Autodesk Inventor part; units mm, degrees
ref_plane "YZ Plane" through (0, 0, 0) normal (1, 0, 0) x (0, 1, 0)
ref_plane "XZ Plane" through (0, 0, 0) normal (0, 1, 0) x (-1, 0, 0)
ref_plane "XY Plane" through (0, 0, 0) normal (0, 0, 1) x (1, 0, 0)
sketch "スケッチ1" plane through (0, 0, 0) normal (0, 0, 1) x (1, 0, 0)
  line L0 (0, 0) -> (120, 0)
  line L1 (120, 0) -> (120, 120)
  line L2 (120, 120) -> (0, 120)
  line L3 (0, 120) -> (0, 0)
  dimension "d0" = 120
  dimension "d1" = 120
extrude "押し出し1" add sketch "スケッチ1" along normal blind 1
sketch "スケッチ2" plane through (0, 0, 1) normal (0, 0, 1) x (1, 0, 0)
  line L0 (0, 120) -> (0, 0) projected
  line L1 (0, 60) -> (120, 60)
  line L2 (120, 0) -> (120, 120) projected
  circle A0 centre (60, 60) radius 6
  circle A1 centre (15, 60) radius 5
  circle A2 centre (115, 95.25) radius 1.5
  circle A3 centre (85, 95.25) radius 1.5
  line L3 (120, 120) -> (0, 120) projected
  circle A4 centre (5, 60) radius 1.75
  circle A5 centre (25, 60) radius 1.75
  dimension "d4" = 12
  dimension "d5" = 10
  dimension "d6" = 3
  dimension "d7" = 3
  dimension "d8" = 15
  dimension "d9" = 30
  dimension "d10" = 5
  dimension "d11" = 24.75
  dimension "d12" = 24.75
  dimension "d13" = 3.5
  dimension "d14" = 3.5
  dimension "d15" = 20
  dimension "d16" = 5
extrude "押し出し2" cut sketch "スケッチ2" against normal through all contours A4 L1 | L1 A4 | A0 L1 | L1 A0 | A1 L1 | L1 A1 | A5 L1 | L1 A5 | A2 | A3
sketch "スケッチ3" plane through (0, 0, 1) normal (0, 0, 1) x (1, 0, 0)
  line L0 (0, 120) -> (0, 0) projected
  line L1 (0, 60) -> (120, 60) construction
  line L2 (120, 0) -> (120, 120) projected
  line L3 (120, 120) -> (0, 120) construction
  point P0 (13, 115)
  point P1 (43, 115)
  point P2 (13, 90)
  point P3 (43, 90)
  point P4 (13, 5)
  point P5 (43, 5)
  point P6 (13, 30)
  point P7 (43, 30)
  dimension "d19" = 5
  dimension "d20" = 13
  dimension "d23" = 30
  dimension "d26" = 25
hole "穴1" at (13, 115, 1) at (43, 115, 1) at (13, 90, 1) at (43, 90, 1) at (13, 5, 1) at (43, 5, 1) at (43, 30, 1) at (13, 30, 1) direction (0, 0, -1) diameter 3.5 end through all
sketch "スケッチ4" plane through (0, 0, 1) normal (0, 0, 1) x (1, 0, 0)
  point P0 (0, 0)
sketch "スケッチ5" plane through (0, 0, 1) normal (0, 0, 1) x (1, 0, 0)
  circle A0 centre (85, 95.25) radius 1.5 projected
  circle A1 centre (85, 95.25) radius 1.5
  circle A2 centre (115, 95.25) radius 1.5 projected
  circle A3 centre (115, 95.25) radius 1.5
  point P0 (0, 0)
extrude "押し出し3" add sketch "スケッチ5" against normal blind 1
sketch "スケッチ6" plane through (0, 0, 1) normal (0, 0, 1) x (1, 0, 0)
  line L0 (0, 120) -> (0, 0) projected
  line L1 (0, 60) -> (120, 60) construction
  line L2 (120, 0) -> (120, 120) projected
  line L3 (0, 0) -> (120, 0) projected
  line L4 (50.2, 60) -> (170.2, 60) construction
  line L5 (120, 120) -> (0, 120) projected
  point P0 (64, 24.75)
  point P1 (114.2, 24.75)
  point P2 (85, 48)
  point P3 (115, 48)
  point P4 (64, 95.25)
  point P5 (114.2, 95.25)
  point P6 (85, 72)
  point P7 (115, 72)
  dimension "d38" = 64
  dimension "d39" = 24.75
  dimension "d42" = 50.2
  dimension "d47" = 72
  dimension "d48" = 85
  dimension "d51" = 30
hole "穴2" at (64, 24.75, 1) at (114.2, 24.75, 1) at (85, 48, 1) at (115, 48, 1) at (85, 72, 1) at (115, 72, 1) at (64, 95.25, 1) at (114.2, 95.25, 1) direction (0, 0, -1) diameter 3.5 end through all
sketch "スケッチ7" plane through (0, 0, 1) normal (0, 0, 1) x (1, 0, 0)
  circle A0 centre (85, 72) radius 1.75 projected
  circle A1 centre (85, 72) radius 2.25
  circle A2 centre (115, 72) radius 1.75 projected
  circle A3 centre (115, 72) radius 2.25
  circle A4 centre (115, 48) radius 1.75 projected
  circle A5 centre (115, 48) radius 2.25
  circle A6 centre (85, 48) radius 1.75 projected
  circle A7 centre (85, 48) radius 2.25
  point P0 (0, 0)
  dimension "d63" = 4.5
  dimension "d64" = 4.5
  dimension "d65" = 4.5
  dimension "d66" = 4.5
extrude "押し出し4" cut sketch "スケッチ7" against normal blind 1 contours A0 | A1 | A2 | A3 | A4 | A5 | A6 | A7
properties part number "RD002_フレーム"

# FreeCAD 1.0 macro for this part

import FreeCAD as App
import Part
import Sketcher
from FreeCAD import Vector

doc = App.newDocument("Part")
body = doc.addObject("PartDesign::Body", "Body")

sketch1 = doc.addObject("Sketcher::SketchObject", "Sketch")
body.addObject(sketch1)
sketch1.AttachmentSupport = (doc.XY_Plane, [""])
sketch1.MapMode = "FlatFace"
sketch1.addGeometry(Part.LineSegment(Vector(0, 120, 0), Vector(0, 0, 0)), False)
sketch1.addGeometry(Part.LineSegment(Vector(0, 0, 0), Vector(120, 0, 0)), False)
sketch1.addGeometry(Part.LineSegment(Vector(120, 0, 0), Vector(120, 120, 0)), False)
sketch1.addGeometry(Part.LineSegment(Vector(120, 120, 0), Vector(0, 120, 0)), False)
sketch1.addConstraint(Sketcher.Constraint("Coincident", 0, 2, 1, 1))
sketch1.addConstraint(Sketcher.Constraint("Coincident", 1, 2, 2, 1))
sketch1.addConstraint(Sketcher.Constraint("Coincident", 2, 2, 3, 1))
sketch1.addConstraint(Sketcher.Constraint("Coincident", 3, 2, 0, 1))
sketch1.addConstraint(Sketcher.Constraint("Vertical", 0))
sketch1.addConstraint(Sketcher.Constraint("Horizontal", 1))
sketch1.addConstraint(Sketcher.Constraint("Vertical", 2))
sketch1.addConstraint(Sketcher.Constraint("Horizontal", 3))
sketch1.addConstraint(Sketcher.Constraint("Coincident", 0, 2, -1, 1))
sketch1.addConstraint(Sketcher.Constraint("Equal", 3, 0))
sketch1.addConstraint(Sketcher.Constraint("DistanceX", 1, 1, 1, 2, 120.0))
pad1 = doc.addObject("PartDesign::Pad", "Pad")
body.addObject(pad1)
pad1.Profile = sketch1
pad1.Length = 1

sketch2 = doc.addObject("Sketcher::SketchObject", "Sketch001")
body.addObject(sketch2)
sketch2.AttachmentSupport = (doc.XY_Plane, [""])
sketch2.MapMode = "FlatFace"
sketch2.AttachmentOffset = App.Placement(Vector(0, 0, 1), App.Rotation())
sketch2.addGeometry(Part.Circle(Vector(5, 60, 0), Vector(0, 0, 1), 1.8), False)
sketch2.addGeometry(Part.Circle(Vector(60, 60, 0), Vector(0, 0, 1), 6), False)
sketch2.addGeometry(Part.Circle(Vector(15, 60, 0), Vector(0, 0, 1), 5), False)
sketch2.addGeometry(Part.Circle(Vector(25, 60, 0), Vector(0, 0, 1), 1.8), False)
sketch2.addGeometry(Part.Circle(Vector(115, 95.2, 0), Vector(0, 0, 1), 1.5), False)
sketch2.addGeometry(Part.Circle(Vector(85, 95.2, 0), Vector(0, 0, 1), 1.5), False)
sketch2.addConstraint(Sketcher.Constraint("Equal", 0, 3))
sketch2.addConstraint(Sketcher.Constraint("Equal", 4, 5))
sketch2.addConstraint(Sketcher.Constraint("Horizontal", 0, 3, 1, 3))
sketch2.addConstraint(Sketcher.Constraint("Horizontal", 1, 3, 2, 3))
sketch2.addConstraint(Sketcher.Constraint("Horizontal", 2, 3, 3, 3))
sketch2.addConstraint(Sketcher.Constraint("Horizontal", 4, 3, 5, 3))
sketch2.addConstraint(Sketcher.Constraint("Diameter", 1, 12.0))
sketch2.addConstraint(Sketcher.Constraint("Diameter", 2, 10.0))
sketch2.addConstraint(Sketcher.Constraint("Diameter", 4, 3.0))
sketch2.addConstraint(Sketcher.Constraint("Diameter", 0, 3.5))
sketch2.addConstraint(Sketcher.Constraint("DistanceX", -1, 1, 0, 3, 5.0))
sketch2.addConstraint(Sketcher.Constraint("DistanceX", -1, 1, 2, 3, 15.0))
sketch2.addConstraint(Sketcher.Constraint("DistanceX", 2, 3, 3, 3, 10.0))
sketch2.addConstraint(Sketcher.Constraint("DistanceX", 5, 3, 4, 3, 30.0))
sketch2.addConstraint(Sketcher.Constraint("DistanceY", -1, 1, 0, 3, 60.0))
sketch2.addConstraint(Sketcher.Constraint("DistanceX", -1, 1, 1, 3, 60.0))
sketch2.addConstraint(Sketcher.Constraint("DistanceX", -1, 1, 4, 3, 115.0))
sketch2.addConstraint(Sketcher.Constraint("DistanceY", -1, 1, 4, 3, 95.25))
pocket1 = doc.addObject("PartDesign::Pocket", "Pocket")
body.addObject(pocket1)
pocket1.Profile = sketch2
pocket1.Type = "ThroughAll"

sketch3 = doc.addObject("Sketcher::SketchObject", "Sketch002")
body.addObject(sketch3)
sketch3.AttachmentSupport = (doc.XY_Plane, [""])
sketch3.MapMode = "FlatFace"
sketch3.AttachmentOffset = App.Placement(Vector(0, 0, 1), App.Rotation())
sketch3.addGeometry(Part.Circle(Vector(13, 115, 0), Vector(0, 0, 1), 1.8), False)
sketch3.addGeometry(Part.Circle(Vector(43, 115, 0), Vector(0, 0, 1), 1.8), False)
sketch3.addGeometry(Part.Circle(Vector(13, 90, 0), Vector(0, 0, 1), 1.8), False)
sketch3.addGeometry(Part.Circle(Vector(43, 90, 0), Vector(0, 0, 1), 1.8), False)
sketch3.addGeometry(Part.Circle(Vector(13, 5, 0), Vector(0, 0, 1), 1.8), False)
sketch3.addGeometry(Part.Circle(Vector(43, 5, 0), Vector(0, 0, 1), 1.8), False)
sketch3.addGeometry(Part.Circle(Vector(43, 30, 0), Vector(0, 0, 1), 1.8), False)
sketch3.addGeometry(Part.Circle(Vector(13, 30, 0), Vector(0, 0, 1), 1.8), False)
sketch3.addConstraint(Sketcher.Constraint("Equal", 0, 1))
sketch3.addConstraint(Sketcher.Constraint("Equal", 1, 2))
sketch3.addConstraint(Sketcher.Constraint("Equal", 2, 3))
sketch3.addConstraint(Sketcher.Constraint("Equal", 3, 4))
sketch3.addConstraint(Sketcher.Constraint("Equal", 4, 5))
sketch3.addConstraint(Sketcher.Constraint("Equal", 5, 6))
sketch3.addConstraint(Sketcher.Constraint("Equal", 6, 7))
sketch3.addConstraint(Sketcher.Constraint("Horizontal", 0, 3, 1, 3))
sketch3.addConstraint(Sketcher.Constraint("Horizontal", 2, 3, 3, 3))
sketch3.addConstraint(Sketcher.Constraint("Horizontal", 4, 3, 5, 3))
sketch3.addConstraint(Sketcher.Constraint("Horizontal", 6, 3, 7, 3))
sketch3.addConstraint(Sketcher.Constraint("Vertical", 0, 3, 2, 3))
sketch3.addConstraint(Sketcher.Constraint("Vertical", 1, 3, 3, 3))
sketch3.addConstraint(Sketcher.Constraint("Vertical", 2, 3, 4, 3))
sketch3.addConstraint(Sketcher.Constraint("Vertical", 3, 3, 5, 3))
sketch3.addConstraint(Sketcher.Constraint("Vertical", 5, 3, 6, 3))
sketch3.addConstraint(Sketcher.Constraint("Vertical", 4, 3, 7, 3))
sketch3.addConstraint(Sketcher.Constraint("Diameter", 0, 3.5))
sketch3.addConstraint(Sketcher.Constraint("DistanceX", -1, 1, 0, 3, 13.0))
sketch3.addConstraint(Sketcher.Constraint("DistanceY", -1, 1, 0, 3, 115.0))
sketch3.addConstraint(Sketcher.Constraint("DistanceX", -1, 1, 1, 3, 43.0))
sketch3.addConstraint(Sketcher.Constraint("DistanceY", -1, 1, 2, 3, 90.0))
sketch3.addConstraint(Sketcher.Constraint("DistanceY", -1, 1, 4, 3, 5.0))
sketch3.addConstraint(Sketcher.Constraint("DistanceY", -1, 1, 6, 3, 30.0))
doc.recompute()
hole = doc.addObject("PartDesign::Hole", "Hole")
body.addObject(hole)
hole.Profile = sketch3
hole.ThreadType = "None"
hole.Diameter = 3.5
hole.DepthType = "ThroughAll"

sketch4 = doc.addObject("Sketcher::SketchObject", "Sketch003")
body.addObject(sketch4)
sketch4.AttachmentSupport = (doc.XY_Plane, [""])
sketch4.MapMode = "FlatFace"
sketch4.AttachmentOffset = App.Placement(Vector(0, 0, 1), App.Rotation())
sketch4.addGeometry(Part.Circle(Vector(85, 95.2, 0), Vector(0, 0, 1), 1.5), False)
sketch4.addGeometry(Part.Circle(Vector(115, 95.2, 0), Vector(0, 0, 1), 1.5), False)
sketch4.addConstraint(Sketcher.Constraint("Equal", 0, 1))
sketch4.addConstraint(Sketcher.Constraint("Horizontal", 0, 3, 1, 3))
sketch4.addConstraint(Sketcher.Constraint("Diameter", 0, 3.0))
sketch4.addConstraint(Sketcher.Constraint("DistanceX", -1, 1, 0, 3, 85.0))
sketch4.addConstraint(Sketcher.Constraint("DistanceX", -1, 1, 1, 3, 115.0))
sketch4.addConstraint(Sketcher.Constraint("DistanceY", -1, 1, 0, 3, 95.25))
pad2 = doc.addObject("PartDesign::Pad", "Pad001")
body.addObject(pad2)
pad2.Profile = sketch4
pad2.Length = 1
pad2.Reversed = True

sketch5 = doc.addObject("Sketcher::SketchObject", "Sketch004")
body.addObject(sketch5)
sketch5.AttachmentSupport = (doc.XY_Plane, [""])
sketch5.MapMode = "FlatFace"
sketch5.AttachmentOffset = App.Placement(Vector(0, 0, 1), App.Rotation())
sketch5.addGeometry(Part.Circle(Vector(64, 24.8, 0), Vector(0, 0, 1), 1.8), False)
sketch5.addGeometry(Part.Circle(Vector(114.2, 24.8, 0), Vector(0, 0, 1), 1.8), False)
sketch5.addGeometry(Part.Circle(Vector(85, 48, 0), Vector(0, 0, 1), 1.8), False)
sketch5.addGeometry(Part.Circle(Vector(115, 48, 0), Vector(0, 0, 1), 1.8), False)
sketch5.addGeometry(Part.Circle(Vector(85, 72, 0), Vector(0, 0, 1), 1.8), False)
sketch5.addGeometry(Part.Circle(Vector(115, 72, 0), Vector(0, 0, 1), 1.8), False)
sketch5.addGeometry(Part.Circle(Vector(64, 95.2, 0), Vector(0, 0, 1), 1.8), False)
sketch5.addGeometry(Part.Circle(Vector(114.2, 95.2, 0), Vector(0, 0, 1), 1.8), False)
sketch5.addConstraint(Sketcher.Constraint("Equal", 0, 1))
sketch5.addConstraint(Sketcher.Constraint("Equal", 1, 2))
sketch5.addConstraint(Sketcher.Constraint("Equal", 2, 3))
sketch5.addConstraint(Sketcher.Constraint("Equal", 3, 4))
sketch5.addConstraint(Sketcher.Constraint("Equal", 4, 5))
sketch5.addConstraint(Sketcher.Constraint("Equal", 5, 6))
sketch5.addConstraint(Sketcher.Constraint("Equal", 6, 7))
sketch5.addConstraint(Sketcher.Constraint("Horizontal", 0, 3, 1, 3))
sketch5.addConstraint(Sketcher.Constraint("Horizontal", 2, 3, 3, 3))
sketch5.addConstraint(Sketcher.Constraint("Horizontal", 4, 3, 5, 3))
sketch5.addConstraint(Sketcher.Constraint("Horizontal", 6, 3, 7, 3))
sketch5.addConstraint(Sketcher.Constraint("Vertical", 2, 3, 4, 3))
sketch5.addConstraint(Sketcher.Constraint("Vertical", 3, 3, 5, 3))
sketch5.addConstraint(Sketcher.Constraint("Vertical", 0, 3, 6, 3))
sketch5.addConstraint(Sketcher.Constraint("Vertical", 1, 3, 7, 3))
sketch5.addConstraint(Sketcher.Constraint("Diameter", 0, 3.5))
sketch5.addConstraint(Sketcher.Constraint("DistanceX", -1, 1, 0, 3, 64.0))
sketch5.addConstraint(Sketcher.Constraint("DistanceX", -1, 1, 2, 3, 85.0))
sketch5.addConstraint(Sketcher.Constraint("DistanceY", -1, 1, 2, 3, 48.0))
sketch5.addConstraint(Sketcher.Constraint("DistanceX", -1, 1, 3, 3, 115.0))
sketch5.addConstraint(Sketcher.Constraint("DistanceY", -1, 1, 4, 3, 72.0))
sketch5.addConstraint(Sketcher.Constraint("DistanceX", -1, 1, 1, 3, 114.2))
sketch5.addConstraint(Sketcher.Constraint("DistanceY", 0, 3, 6, 3, 70.5))
sketch5.addConstraint(Sketcher.Constraint("DistanceY", -1, 1, 0, 3, 24.75))
doc.recompute()
hole2 = doc.addObject("PartDesign::Hole", "Hole001")
body.addObject(hole2)
hole2.Profile = sketch5
hole2.ThreadType = "None"
hole2.Diameter = 3.5
hole2.DepthType = "ThroughAll"

sketch6 = doc.addObject("Sketcher::SketchObject", "Sketch005")
body.addObject(sketch6)
sketch6.AttachmentSupport = (doc.XY_Plane, [""])
sketch6.MapMode = "FlatFace"
sketch6.AttachmentOffset = App.Placement(Vector(0, 0, 1), App.Rotation())
sketch6.addGeometry(Part.Circle(Vector(85, 72, 0), Vector(0, 0, 1), 2.2), False)
sketch6.addGeometry(Part.Circle(Vector(115, 72, 0), Vector(0, 0, 1), 2.2), False)
sketch6.addGeometry(Part.Circle(Vector(115, 48, 0), Vector(0, 0, 1), 2.2), False)
sketch6.addGeometry(Part.Circle(Vector(85, 48, 0), Vector(0, 0, 1), 2.2), False)
sketch6.addConstraint(Sketcher.Constraint("Equal", 0, 1))
sketch6.addConstraint(Sketcher.Constraint("Equal", 1, 2))
sketch6.addConstraint(Sketcher.Constraint("Equal", 2, 3))
sketch6.addConstraint(Sketcher.Constraint("Horizontal", 0, 3, 1, 3))
sketch6.addConstraint(Sketcher.Constraint("Horizontal", 2, 3, 3, 3))
sketch6.addConstraint(Sketcher.Constraint("Vertical", 1, 3, 2, 3))
sketch6.addConstraint(Sketcher.Constraint("Vertical", 0, 3, 3, 3))
sketch6.addConstraint(Sketcher.Constraint("Diameter", 0, 4.5))
sketch6.addConstraint(Sketcher.Constraint("DistanceX", -1, 1, 0, 3, 85.0))
sketch6.addConstraint(Sketcher.Constraint("DistanceY", -1, 1, 0, 3, 72.0))
sketch6.addConstraint(Sketcher.Constraint("DistanceX", -1, 1, 1, 3, 115.0))
sketch6.addConstraint(Sketcher.Constraint("DistanceY", -1, 1, 2, 3, 48.0))
pocket2 = doc.addObject("PartDesign::Pocket", "Pocket001")
body.addObject(pocket2)
pocket2.Profile = sketch6
pocket2.Length = 1

doc.recompute()
